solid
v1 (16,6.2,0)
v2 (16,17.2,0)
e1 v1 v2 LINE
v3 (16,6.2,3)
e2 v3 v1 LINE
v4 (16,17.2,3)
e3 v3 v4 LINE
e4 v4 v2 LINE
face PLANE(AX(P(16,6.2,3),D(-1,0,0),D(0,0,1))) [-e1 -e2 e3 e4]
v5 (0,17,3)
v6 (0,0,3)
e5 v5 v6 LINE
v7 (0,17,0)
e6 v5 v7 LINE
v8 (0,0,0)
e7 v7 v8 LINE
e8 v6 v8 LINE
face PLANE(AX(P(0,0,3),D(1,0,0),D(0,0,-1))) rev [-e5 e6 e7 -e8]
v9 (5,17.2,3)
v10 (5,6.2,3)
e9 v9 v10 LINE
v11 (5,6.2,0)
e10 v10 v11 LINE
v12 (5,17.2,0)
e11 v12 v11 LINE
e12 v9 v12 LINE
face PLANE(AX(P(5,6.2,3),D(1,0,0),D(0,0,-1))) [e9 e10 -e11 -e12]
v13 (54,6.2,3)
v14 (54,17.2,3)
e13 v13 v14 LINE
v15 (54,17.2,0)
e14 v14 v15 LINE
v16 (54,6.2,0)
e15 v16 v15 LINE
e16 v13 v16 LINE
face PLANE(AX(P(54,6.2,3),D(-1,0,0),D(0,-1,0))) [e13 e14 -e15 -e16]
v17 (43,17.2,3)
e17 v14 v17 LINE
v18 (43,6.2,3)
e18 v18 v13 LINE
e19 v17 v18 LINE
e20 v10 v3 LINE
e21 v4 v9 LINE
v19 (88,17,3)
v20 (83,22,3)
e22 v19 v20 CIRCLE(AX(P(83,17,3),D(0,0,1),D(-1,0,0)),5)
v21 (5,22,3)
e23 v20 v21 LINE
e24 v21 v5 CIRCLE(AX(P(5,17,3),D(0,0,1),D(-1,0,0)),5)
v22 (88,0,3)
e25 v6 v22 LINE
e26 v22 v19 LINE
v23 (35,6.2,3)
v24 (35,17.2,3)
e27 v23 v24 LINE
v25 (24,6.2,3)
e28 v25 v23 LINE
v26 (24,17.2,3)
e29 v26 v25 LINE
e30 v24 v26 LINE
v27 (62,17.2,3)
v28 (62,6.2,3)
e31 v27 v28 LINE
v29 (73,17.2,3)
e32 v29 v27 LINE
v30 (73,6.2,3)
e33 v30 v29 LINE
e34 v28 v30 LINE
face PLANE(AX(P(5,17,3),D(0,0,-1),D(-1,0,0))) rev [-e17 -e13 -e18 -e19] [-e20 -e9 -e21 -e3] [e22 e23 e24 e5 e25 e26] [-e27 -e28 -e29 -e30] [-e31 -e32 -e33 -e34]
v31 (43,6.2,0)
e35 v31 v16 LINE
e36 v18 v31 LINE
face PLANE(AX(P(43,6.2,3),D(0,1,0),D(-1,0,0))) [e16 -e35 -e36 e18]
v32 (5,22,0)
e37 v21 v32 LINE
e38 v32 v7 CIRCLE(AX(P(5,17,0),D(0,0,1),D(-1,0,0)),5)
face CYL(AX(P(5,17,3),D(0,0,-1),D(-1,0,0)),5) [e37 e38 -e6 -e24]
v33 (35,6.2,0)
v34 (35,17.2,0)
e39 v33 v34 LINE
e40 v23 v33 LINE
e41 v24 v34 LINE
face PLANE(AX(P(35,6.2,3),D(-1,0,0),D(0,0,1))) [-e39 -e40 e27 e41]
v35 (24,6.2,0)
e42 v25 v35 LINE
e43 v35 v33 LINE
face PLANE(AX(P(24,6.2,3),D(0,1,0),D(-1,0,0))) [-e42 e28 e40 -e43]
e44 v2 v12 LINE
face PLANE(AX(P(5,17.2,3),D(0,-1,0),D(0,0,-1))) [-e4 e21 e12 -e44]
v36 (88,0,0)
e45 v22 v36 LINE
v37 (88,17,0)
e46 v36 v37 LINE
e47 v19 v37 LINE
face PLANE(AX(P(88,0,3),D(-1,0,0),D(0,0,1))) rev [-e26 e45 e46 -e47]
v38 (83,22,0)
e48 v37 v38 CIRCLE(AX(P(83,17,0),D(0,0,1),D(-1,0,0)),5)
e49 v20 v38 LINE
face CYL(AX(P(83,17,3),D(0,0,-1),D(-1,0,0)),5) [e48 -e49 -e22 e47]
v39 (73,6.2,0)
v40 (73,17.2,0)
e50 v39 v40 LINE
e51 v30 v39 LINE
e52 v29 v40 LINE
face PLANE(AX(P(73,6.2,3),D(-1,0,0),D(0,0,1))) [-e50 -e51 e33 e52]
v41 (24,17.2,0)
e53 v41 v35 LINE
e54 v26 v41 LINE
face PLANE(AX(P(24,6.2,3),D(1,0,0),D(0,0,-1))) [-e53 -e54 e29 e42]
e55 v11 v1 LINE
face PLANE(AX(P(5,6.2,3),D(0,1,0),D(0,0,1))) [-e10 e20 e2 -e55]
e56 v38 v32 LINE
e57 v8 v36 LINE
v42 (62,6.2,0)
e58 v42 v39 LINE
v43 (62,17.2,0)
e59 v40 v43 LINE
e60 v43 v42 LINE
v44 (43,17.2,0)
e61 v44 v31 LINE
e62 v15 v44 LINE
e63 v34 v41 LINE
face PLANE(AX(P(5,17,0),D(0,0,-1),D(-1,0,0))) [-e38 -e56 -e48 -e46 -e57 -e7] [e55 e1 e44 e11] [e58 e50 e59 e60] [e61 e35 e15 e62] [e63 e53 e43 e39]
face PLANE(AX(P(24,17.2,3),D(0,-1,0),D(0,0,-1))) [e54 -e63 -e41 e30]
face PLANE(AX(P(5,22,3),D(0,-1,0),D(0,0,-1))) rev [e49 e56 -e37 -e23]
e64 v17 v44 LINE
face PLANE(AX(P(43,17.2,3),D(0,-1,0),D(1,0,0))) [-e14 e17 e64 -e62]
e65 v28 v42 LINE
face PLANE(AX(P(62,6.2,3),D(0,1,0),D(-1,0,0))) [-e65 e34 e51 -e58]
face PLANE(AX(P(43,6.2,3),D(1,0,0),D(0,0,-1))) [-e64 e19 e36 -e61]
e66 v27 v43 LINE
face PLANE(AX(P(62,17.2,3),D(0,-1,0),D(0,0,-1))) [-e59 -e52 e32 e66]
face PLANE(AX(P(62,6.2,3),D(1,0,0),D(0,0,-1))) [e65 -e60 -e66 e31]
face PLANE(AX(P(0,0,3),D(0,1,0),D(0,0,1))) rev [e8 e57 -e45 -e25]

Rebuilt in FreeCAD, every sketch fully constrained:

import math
import FreeCAD as App
import Part
import Sketcher
from FreeCAD import Vector
Q = App.Units.Quantity


def add_polygon(sketch, points):
    """Adds a closed chain of lines whose ends are joined by coincident constraints."""
    first, n = sketch.GeometryCount, len(points)
    for a, b in zip(points, points[1:] + points[:1]):
        sketch.addGeometry(Part.LineSegment(App.Vector(*a, 0), App.Vector(*b, 0)), False)
    for i in range(n):
        sketch.addConstraint(Sketcher.Constraint("Coincident", first + i, 2, first + (i + 1) % n, 1))

doc = App.newDocument("Part")
body = doc.addObject("PartDesign::Body", "Body")

# Sketch on XY plane
sketch1 = body.newObject("Sketcher::SketchObject", "Sketch")
sketch1.AttachmentSupport = (doc.getObject("XY_Plane"), [""])
sketch1.MapMode = "FlatFace"
sketch1.addGeometry(Part.LineSegment(Vector(0, 0, 0), Vector(88, 0, 0)), False)  # 0
sketch1.addGeometry(Part.LineSegment(Vector(88, 0, 0), Vector(88, 17, 0)), False)  # 1
sketch1.addGeometry(Part.ArcOfCircle(Part.Circle(Vector(83, 17, 0), Vector(0, 0, 1), 5), math.radians(0), math.radians(90)), False)  # 2
sketch1.addGeometry(Part.LineSegment(Vector(83, 22, 0), Vector(5, 22, 0)), False)  # 3
sketch1.addGeometry(Part.ArcOfCircle(Part.Circle(Vector(5, 17, 0), Vector(0, 0, 1), 5), math.radians(90), math.radians(180)), False)  # 4
sketch1.addGeometry(Part.LineSegment(Vector(0, 17, 0), Vector(0, 0, 0)), False)  # 5
add_polygon(sketch1, [(16, 6.2), (5, 6.2), (5, 17.2), (16, 17.2)])  # lines 6-9
add_polygon(sketch1, [(35, 6.2), (24, 6.2), (24, 17.2), (35, 17.2)])  # lines 10-13
add_polygon(sketch1, [(54, 6.2), (43, 6.2), (43, 17.2), (54, 17.2)])  # lines 14-17
add_polygon(sketch1, [(73, 6.2), (62, 6.2), (62, 17.2), (73, 17.2)])  # lines 18-21
sketch1.addConstraint(Sketcher.Constraint("Coincident", 0, 2, 1, 1))
sketch1.addConstraint(Sketcher.Constraint("Tangent", 1, 2, 2, 1))
sketch1.addConstraint(Sketcher.Constraint("Tangent", 2, 2, 3, 1))
sketch1.addConstraint(Sketcher.Constraint("Tangent", 3, 2, 4, 1))
sketch1.addConstraint(Sketcher.Constraint("Tangent", 4, 2, 5, 1))
sketch1.addConstraint(Sketcher.Constraint("Coincident", 5, 2, 0, 1))
sketch1.addConstraint(Sketcher.Constraint("Horizontal", 0))
sketch1.addConstraint(Sketcher.Constraint("Vertical", 1))
sketch1.addConstraint(Sketcher.Constraint("Horizontal", 3))
sketch1.addConstraint(Sketcher.Constraint("Vertical", 5))
sketch1.addConstraint(Sketcher.Constraint("Horizontal", 6))
sketch1.addConstraint(Sketcher.Constraint("Vertical", 7))
sketch1.addConstraint(Sketcher.Constraint("Horizontal", 8))
sketch1.addConstraint(Sketcher.Constraint("Vertical", 9))
sketch1.addConstraint(Sketcher.Constraint("Horizontal", 10))
sketch1.addConstraint(Sketcher.Constraint("Vertical", 11))
sketch1.addConstraint(Sketcher.Constraint("Horizontal", 12))
sketch1.addConstraint(Sketcher.Constraint("Vertical", 13))
sketch1.addConstraint(Sketcher.Constraint("Horizontal", 14))
sketch1.addConstraint(Sketcher.Constraint("Vertical", 15))
sketch1.addConstraint(Sketcher.Constraint("Horizontal", 16))
sketch1.addConstraint(Sketcher.Constraint("Vertical", 17))
sketch1.addConstraint(Sketcher.Constraint("Horizontal", 18))
sketch1.addConstraint(Sketcher.Constraint("Vertical", 19))
sketch1.addConstraint(Sketcher.Constraint("Horizontal", 20))
sketch1.addConstraint(Sketcher.Constraint("Vertical", 21))
sketch1.addConstraint(Sketcher.Constraint("Coincident", 5, 2, -1, 1))
sketch1.addConstraint(Sketcher.Constraint("Equal", 2, 4))
sketch1.addConstraint(Sketcher.Constraint("Horizontal", 9, 2, 10, 2))
sketch1.addConstraint(Sketcher.Constraint("Horizontal", 8, 2, 11, 2))
sketch1.addConstraint(Sketcher.Constraint("Horizontal", 13, 2, 14, 2))
sketch1.addConstraint(Sketcher.Constraint("Horizontal", 12, 2, 15, 2))
sketch1.addConstraint(Sketcher.Constraint("Horizontal", 17, 2, 18, 2))
sketch1.addConstraint(Sketcher.Constraint("Horizontal", 16, 2, 19, 2))
sketch1.addConstraint(Sketcher.Constraint("Vertical", 3, 2, 6, 2))
sketch1.addConstraint(Sketcher.Constraint("Equal", 8, 10))
sketch1.addConstraint(Sketcher.Constraint("Equal", 12, 14))
sketch1.addConstraint(Sketcher.Constraint("Equal", 16, 18))
sketch1.addConstraint(Sketcher.Constraint("Equal", 20, 7))
sketch1.addConstraint(Sketcher.Constraint("Radius", 2, Q("5 mm")))
sketch1.addConstraint(Sketcher.Constraint("DistanceX", 0, 1, 0, 2, Q("88 mm")))
sketch1.addConstraint(Sketcher.Constraint("DistanceX", 6, 2, 6, 1, Q("11 mm")))
sketch1.addConstraint(Sketcher.Constraint("DistanceY", 1, 1, 1, 2, Q("17 mm")))
sketch1.addConstraint(Sketcher.Constraint("DistanceX", -1, 1, 10, 2, Q("24 mm")))
sketch1.addConstraint(Sketcher.Constraint("DistanceX", -1, 1, 14, 2, Q("43 mm")))
sketch1.addConstraint(Sketcher.Constraint("DistanceX", -1, 1, 18, 2, Q("62 mm")))
sketch1.addConstraint(Sketcher.Constraint("DistanceY", -1, 1, 6, 2, Q("6.2 mm")))
pad1 = body.newObject("PartDesign::Pad", "Pad")
pad1.Profile = sketch1
pad1.Length = 3

doc.recompute()
